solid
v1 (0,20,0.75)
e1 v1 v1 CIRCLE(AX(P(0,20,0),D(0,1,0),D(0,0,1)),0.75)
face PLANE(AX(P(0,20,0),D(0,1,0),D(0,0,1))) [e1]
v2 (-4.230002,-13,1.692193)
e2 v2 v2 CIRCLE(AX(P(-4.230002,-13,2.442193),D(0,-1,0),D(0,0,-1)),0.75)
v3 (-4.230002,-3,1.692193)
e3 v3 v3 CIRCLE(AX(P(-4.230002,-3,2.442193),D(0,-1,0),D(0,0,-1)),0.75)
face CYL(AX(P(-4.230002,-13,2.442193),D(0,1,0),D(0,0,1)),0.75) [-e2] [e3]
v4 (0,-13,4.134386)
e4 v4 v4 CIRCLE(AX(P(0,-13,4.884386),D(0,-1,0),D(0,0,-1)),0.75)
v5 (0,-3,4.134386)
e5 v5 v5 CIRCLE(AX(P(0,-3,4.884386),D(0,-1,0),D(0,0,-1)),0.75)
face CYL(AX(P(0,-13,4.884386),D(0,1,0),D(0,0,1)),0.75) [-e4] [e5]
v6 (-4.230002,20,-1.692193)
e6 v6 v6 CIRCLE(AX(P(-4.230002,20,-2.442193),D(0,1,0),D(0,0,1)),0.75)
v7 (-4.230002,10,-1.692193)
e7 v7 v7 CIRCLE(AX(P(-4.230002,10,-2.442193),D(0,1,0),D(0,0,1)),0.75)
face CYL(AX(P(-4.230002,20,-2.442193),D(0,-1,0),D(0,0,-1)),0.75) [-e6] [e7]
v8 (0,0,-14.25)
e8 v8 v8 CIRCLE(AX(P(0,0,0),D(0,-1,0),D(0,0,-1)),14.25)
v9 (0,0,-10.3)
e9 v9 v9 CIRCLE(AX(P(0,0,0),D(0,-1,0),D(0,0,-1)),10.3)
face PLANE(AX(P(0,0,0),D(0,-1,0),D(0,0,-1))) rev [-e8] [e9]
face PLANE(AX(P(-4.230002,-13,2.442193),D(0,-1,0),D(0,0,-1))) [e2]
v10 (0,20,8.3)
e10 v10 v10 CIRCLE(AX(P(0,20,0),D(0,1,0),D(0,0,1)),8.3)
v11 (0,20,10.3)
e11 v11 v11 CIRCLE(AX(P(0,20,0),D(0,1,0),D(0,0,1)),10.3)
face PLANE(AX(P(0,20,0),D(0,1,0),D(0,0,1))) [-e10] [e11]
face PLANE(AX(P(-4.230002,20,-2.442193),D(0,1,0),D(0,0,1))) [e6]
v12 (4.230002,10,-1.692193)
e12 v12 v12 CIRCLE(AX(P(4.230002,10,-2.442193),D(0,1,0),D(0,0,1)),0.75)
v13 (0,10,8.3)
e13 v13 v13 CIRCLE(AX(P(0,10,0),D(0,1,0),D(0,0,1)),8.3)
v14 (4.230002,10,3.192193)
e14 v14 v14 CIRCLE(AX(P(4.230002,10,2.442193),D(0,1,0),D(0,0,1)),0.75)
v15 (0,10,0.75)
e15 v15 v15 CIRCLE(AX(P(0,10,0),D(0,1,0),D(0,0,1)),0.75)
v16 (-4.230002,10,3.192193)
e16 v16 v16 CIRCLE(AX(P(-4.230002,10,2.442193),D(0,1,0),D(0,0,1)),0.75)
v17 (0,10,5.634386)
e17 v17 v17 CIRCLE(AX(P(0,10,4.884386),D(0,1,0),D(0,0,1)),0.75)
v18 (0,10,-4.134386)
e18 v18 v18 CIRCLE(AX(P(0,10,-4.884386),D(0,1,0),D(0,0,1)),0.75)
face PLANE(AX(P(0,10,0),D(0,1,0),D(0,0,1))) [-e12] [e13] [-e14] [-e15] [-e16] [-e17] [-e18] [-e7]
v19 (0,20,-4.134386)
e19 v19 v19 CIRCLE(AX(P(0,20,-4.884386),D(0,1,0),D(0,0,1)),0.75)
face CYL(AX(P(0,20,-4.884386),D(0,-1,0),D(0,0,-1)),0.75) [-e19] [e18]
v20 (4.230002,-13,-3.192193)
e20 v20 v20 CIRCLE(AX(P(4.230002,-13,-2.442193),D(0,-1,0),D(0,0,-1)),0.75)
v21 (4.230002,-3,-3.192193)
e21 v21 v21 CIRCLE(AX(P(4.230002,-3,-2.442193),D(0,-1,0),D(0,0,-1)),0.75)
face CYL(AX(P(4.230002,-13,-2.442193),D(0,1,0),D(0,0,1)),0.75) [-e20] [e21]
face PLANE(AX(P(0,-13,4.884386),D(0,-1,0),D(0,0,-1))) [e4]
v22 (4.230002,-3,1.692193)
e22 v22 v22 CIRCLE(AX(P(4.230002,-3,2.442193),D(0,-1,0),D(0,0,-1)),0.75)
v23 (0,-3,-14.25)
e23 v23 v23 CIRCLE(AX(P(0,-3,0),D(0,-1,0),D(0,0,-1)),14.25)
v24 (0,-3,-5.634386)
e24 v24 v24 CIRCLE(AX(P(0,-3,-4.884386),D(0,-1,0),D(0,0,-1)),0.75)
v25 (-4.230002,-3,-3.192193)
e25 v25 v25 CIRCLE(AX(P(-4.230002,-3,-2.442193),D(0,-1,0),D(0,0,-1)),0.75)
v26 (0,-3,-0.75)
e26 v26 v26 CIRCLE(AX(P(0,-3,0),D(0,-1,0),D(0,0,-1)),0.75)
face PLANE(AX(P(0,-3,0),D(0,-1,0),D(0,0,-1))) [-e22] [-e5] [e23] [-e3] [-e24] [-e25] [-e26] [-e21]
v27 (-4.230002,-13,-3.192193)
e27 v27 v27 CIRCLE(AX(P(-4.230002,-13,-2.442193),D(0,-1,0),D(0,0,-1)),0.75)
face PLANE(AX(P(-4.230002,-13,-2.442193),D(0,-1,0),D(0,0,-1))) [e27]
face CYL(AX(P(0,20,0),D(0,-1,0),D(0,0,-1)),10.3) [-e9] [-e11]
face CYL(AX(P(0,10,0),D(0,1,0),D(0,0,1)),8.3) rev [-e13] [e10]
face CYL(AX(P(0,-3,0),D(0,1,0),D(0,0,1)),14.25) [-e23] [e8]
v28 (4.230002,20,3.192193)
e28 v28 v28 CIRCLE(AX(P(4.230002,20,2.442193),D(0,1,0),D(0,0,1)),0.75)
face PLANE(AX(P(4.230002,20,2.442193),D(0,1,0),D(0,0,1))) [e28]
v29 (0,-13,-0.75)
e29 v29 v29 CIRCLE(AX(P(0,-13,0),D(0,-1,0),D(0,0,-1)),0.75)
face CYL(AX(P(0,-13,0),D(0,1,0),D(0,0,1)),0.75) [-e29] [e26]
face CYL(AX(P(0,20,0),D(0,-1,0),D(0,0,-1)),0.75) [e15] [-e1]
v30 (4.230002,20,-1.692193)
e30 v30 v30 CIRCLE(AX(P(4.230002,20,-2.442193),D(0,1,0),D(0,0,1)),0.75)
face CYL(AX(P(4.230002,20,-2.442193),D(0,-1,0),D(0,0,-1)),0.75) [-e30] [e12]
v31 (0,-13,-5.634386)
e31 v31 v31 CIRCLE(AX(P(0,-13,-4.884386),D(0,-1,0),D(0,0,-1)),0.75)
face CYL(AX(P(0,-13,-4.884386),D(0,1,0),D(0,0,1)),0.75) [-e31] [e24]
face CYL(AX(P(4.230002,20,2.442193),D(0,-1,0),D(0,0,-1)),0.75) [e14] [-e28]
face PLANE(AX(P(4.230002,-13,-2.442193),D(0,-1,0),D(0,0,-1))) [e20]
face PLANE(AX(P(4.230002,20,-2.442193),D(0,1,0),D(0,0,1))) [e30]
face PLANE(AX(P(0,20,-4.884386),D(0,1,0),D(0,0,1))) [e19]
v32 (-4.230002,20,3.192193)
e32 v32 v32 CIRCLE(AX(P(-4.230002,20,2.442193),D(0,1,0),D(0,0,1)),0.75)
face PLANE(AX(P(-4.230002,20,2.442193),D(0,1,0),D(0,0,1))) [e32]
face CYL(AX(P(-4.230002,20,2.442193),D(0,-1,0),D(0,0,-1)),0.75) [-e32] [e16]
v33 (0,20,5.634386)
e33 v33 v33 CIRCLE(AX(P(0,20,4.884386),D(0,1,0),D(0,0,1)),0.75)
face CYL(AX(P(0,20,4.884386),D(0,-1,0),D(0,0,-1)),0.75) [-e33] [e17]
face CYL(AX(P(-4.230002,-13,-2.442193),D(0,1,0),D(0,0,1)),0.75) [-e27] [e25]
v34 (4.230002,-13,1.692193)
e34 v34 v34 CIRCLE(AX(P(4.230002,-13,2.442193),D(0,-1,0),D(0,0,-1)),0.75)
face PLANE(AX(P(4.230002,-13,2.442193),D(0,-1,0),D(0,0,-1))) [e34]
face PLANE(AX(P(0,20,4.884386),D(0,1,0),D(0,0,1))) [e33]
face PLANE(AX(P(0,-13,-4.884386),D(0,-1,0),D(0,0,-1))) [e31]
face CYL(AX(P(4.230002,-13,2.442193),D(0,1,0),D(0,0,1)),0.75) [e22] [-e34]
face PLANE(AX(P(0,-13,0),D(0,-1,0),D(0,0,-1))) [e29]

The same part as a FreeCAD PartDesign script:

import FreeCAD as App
import Part
import Sketcher
Q = App.Units.Quantity

doc = App.newDocument("Part")
params = doc.addObject("Spreadsheet::Sheet", "Params")
for row, (alias, value) in enumerate([
    ("sketch1_diameter", "20.6 mm"),
    ("pad1_length", "20 mm"),
    ("sketch2_diameter", "28.5 mm"),
    ("pad2_length", "3 mm"),
    ("sketch3_diameter", "16.6 mm"),
    ("pocket1_length", "10 mm"),
    ("sketch4_diameter", "1.5 mm"),
    ("pad3_length", "10 mm"),
    ("sketch5_diameter", "1.5 mm"),
    ("pad4_length", "10 mm"),
], start=1):
    params.set(f"A{row}", alias)
    params.set(f"B{row}", "=" + value)
    params.setAlias(f"B{row}", alias)

body = doc.addObject("PartDesign::Body", "Body")

# Sketch on XZ plane
sketch1 = doc.addObject("Sketcher::SketchObject", "Sketch")
body.addObject(sketch1)
sketch1.AttachmentSupport = (doc.XZ_Plane, [""])
sketch1.MapMode = "FlatFace"
sketch1.addGeometry(Part.Circle(App.Vector(0, 0, 0), App.Vector(0, 0, 1), 10), False)
sketch1.addConstraint(Sketcher.Constraint("Coincident", 0, 3, -1, 1))
sketch1.addConstraint(Sketcher.Constraint("Diameter", 0, Q("20.6 mm")))
sketch1.setExpression("Constraints[1]", "Params.sketch1_diameter")
pad1 = doc.addObject("PartDesign::Pad", "Pad")
body.addObject(pad1)
pad1.Profile = sketch1
pad1.setExpression("Length", "Params.pad1_length")
pad1.Reversed = True

# Sketch on XZ plane
sketch2 = doc.addObject("Sketcher::SketchObject", "Sketch001")
body.addObject(sketch2)
sketch2.AttachmentSupport = (doc.XZ_Plane, [""])
sketch2.MapMode = "FlatFace"
sketch2.addGeometry(Part.Circle(App.Vector(0, 0, 0), App.Vector(0, 0, 1), 14), False)
sketch2.addConstraint(Sketcher.Constraint("Coincident", 0, 3, -1, 1))
sketch2.addConstraint(Sketcher.Constraint("Diameter", 0, Q("28.5 mm")))
sketch2.setExpression("Constraints[1]", "Params.sketch2_diameter")
pad2 = doc.addObject("PartDesign::Pad", "Pad001")
body.addObject(pad2)
pad2.Profile = sketch2
pad2.setExpression("Length", "Params.pad2_length")

# Sketch on XZ plane
sketch3 = doc.addObject("Sketcher::SketchObject", "Sketch002")
body.addObject(sketch3)
sketch3.AttachmentSupport = (doc.XZ_Plane, [""])
sketch3.MapMode = "FlatFace"
sketch3.AttachmentOffset = App.Placement(App.Vector(0, 0, -20), App.Rotation())
sketch3.addGeometry(Part.Circle(App.Vector(0, 0, 0), App.Vector(0, 0, 1), 8), False)
sketch3.addConstraint(Sketcher.Constraint("Coincident", 0, 3, -1, 1))
sketch3.addConstraint(Sketcher.Constraint("Diameter", 0, Q("16.6 mm")))
sketch3.setExpression("Constraints[1]", "Params.sketch3_diameter")
pocket1 = doc.addObject("PartDesign::Pocket", "Pocket")
body.addObject(pocket1)
pocket1.Profile = sketch3
pocket1.setExpression("Length", "Params.pocket1_length")
pocket1.Reversed = True

# Sketch on XZ plane
sketch4 = doc.addObject("Sketcher::SketchObject", "Sketch003")
body.addObject(sketch4)
sketch4.AttachmentSupport = (doc.XZ_Plane, [""])
sketch4.MapMode = "FlatFace"
sketch4.AttachmentOffset = App.Placement(App.Vector(0, 0, -10), App.Rotation())
sketch4.addGeometry(Part.Circle(App.Vector(0, -4.9, 0), App.Vector(0, 0, 1), 0.8), False)
sketch4.addGeometry(Part.Circle(App.Vector(4.2, -2.4, 0), App.Vector(0, 0, 1), 0.8), False)
sketch4.addGeometry(Part.Circle(App.Vector(4.2, 2.4, 0), App.Vector(0, 0, 1), 0.8), False)
sketch4.addGeometry(Part.Circle(App.Vector(0, 4.9, 0), App.Vector(0, 0, 1), 0.8), False)
sketch4.addGeometry(Part.Circle(App.Vector(-4.2, 2.4, 0), App.Vector(0, 0, 1), 0.8), False)
sketch4.addGeometry(Part.Circle(App.Vector(-4.2, -2.4, 0), App.Vector(0, 0, 1), 0.8), False)
sketch4.addGeometry(Part.Circle(App.Vector(0, 0, 0), App.Vector(0, 0, 1), 0.8), False)
sketch4.addConstraint(Sketcher.Constraint("Coincident", 6, 3, -1, 1))
sketch4.addConstraint(Sketcher.Constraint("Equal", 0, 1))
sketch4.addConstraint(Sketcher.Constraint("Equal", 1, 2))
sketch4.addConstraint(Sketcher.Constraint("Equal", 2, 3))
sketch4.addConstraint(Sketcher.Constraint("Equal", 3, 4))
sketch4.addConstraint(Sketcher.Constraint("Equal", 4, 5))
sketch4.addConstraint(Sketcher.Constraint("Equal", 5, 6))
sketch4.addConstraint(Sketcher.Constraint("Symmetric", 0, 3, 3, 3, -1, 1))
sketch4.addConstraint(Sketcher.Constraint("Symmetric", 1, 3, 4, 3, -1, 1))
sketch4.addConstraint(Sketcher.Constraint("Symmetric", 2, 3, 5, 3, -1, 1))
sketch4.addConstraint(Sketcher.Constraint("Symmetric", 2, 3, 4, 3, -2))
sketch4.addConstraint(Sketcher.Constraint("PointOnObject", 0, 3, -2))
sketch4.addConstraint(Sketcher.Constraint("Diameter", 0, Q("1.5 mm")))
sketch4.addConstraint(Sketcher.Constraint("DistanceX", -1, 1, 1, 3, Q("4.230002 mm")))
sketch4.addConstraint(Sketcher.Constraint("DistanceY", 0, 3, 2, 3, Q("7.326578 mm")))
sketch4.addConstraint(Sketcher.Constraint("DistanceY", 0, 3, 3, 3, Q("9.768771 mm")))
sketch4.setExpression("Constraints[12]", "Params.sketch4_diameter")
pad3 = doc.addObject("PartDesign::Pad", "Pad002")
body.addObject(pad3)
pad3.Profile = sketch4
pad3.setExpression("Length", "Params.pad3_length")
pad3.Reversed = True

# Sketch on XZ plane
sketch5 = doc.addObject("Sketcher::SketchObject", "Sketch004")
body.addObject(sketch5)
sketch5.AttachmentSupport = (doc.XZ_Plane, [""])
sketch5.MapMode = "FlatFace"
sketch5.AttachmentOffset = App.Placement(App.Vector(0, 0, 13), App.Rotation())
sketch5.addGeometry(Part.Circle(App.Vector(0, 0, 0), App.Vector(0, 0, 1), 0.8), False)
sketch5.addGeometry(Part.Circle(App.Vector(-4.2, -2.4, 0), App.Vector(0, 0, 1), 0.8), False)
sketch5.addGeometry(Part.Circle(App.Vector(-4.2, 2.4, 0), App.Vector(0, 0, 1), 0.8), False)
sketch5.addGeometry(Part.Circle(App.Vector(0, 4.9, 0), App.Vector(0, 0, 1), 0.8), False)
sketch5.addGeometry(Part.Circle(App.Vector(4.2, 2.4, 0), App.Vector(0, 0, 1), 0.8), False)
sketch5.addGeometry(Part.Circle(App.Vector(4.2, -2.4, 0), App.Vector(0, 0, 1), 0.8), False)
sketch5.addGeometry(Part.Circle(App.Vector(0, -4.9, 0), App.Vector(0, 0, 1), 0.8), False)
sketch5.addConstraint(Sketcher.Constraint("Coincident", 0, 3, -1, 1))
sketch5.addConstraint(Sketcher.Constraint("Equal", 0, 1))
sketch5.addConstraint(Sketcher.Constraint("Equal", 1, 2))
sketch5.addConstraint(Sketcher.Constraint("Equal", 2, 3))
sketch5.addConstraint(Sketcher.Constraint("Equal", 3, 4))
sketch5.addConstraint(Sketcher.Constraint("Equal", 4, 5))
sketch5.addConstraint(Sketcher.Constraint("Equal", 5, 6))
sketch5.addConstraint(Sketcher.Constraint("Symmetric", 1, 3, 4, 3, -1, 1))
sketch5.addConstraint(Sketcher.Constraint("Symmetric", 2, 3, 5, 3, -1, 1))
sketch5.addConstraint(Sketcher.Constraint("Symmetric", 3, 3, 6, 3, -1, 1))
sketch5.addConstraint(Sketcher.Constraint("Symmetric", 2, 3, 4, 3, -2))
sketch5.addConstraint(Sketcher.Constraint("PointOnObject", 3, 3, -2))
sketch5.addConstraint(Sketcher.Constraint("Diameter", 0, Q("1.5 mm")))
sketch5.addConstraint(Sketcher.Constraint("DistanceX", 1, 3, -1, 1, Q("4.230002 mm")))
sketch5.addConstraint(Sketcher.Constraint("DistanceY", 1, 3, 3, 3, Q("7.326578 mm")))
sketch5.addConstraint(Sketcher.Constraint("DistanceY", 1, 3, -1, 1, Q("2.442193 mm")))
sketch5.setExpression("Constraints[12]", "Params.sketch5_diameter")
pad4 = doc.addObject("PartDesign::Pad", "Pad003")
body.addObject(pad4)
pad4.Profile = sketch5
pad4.setExpression("Length", "Params.pad4_length")
pad4.Reversed = True

doc.recompute()
